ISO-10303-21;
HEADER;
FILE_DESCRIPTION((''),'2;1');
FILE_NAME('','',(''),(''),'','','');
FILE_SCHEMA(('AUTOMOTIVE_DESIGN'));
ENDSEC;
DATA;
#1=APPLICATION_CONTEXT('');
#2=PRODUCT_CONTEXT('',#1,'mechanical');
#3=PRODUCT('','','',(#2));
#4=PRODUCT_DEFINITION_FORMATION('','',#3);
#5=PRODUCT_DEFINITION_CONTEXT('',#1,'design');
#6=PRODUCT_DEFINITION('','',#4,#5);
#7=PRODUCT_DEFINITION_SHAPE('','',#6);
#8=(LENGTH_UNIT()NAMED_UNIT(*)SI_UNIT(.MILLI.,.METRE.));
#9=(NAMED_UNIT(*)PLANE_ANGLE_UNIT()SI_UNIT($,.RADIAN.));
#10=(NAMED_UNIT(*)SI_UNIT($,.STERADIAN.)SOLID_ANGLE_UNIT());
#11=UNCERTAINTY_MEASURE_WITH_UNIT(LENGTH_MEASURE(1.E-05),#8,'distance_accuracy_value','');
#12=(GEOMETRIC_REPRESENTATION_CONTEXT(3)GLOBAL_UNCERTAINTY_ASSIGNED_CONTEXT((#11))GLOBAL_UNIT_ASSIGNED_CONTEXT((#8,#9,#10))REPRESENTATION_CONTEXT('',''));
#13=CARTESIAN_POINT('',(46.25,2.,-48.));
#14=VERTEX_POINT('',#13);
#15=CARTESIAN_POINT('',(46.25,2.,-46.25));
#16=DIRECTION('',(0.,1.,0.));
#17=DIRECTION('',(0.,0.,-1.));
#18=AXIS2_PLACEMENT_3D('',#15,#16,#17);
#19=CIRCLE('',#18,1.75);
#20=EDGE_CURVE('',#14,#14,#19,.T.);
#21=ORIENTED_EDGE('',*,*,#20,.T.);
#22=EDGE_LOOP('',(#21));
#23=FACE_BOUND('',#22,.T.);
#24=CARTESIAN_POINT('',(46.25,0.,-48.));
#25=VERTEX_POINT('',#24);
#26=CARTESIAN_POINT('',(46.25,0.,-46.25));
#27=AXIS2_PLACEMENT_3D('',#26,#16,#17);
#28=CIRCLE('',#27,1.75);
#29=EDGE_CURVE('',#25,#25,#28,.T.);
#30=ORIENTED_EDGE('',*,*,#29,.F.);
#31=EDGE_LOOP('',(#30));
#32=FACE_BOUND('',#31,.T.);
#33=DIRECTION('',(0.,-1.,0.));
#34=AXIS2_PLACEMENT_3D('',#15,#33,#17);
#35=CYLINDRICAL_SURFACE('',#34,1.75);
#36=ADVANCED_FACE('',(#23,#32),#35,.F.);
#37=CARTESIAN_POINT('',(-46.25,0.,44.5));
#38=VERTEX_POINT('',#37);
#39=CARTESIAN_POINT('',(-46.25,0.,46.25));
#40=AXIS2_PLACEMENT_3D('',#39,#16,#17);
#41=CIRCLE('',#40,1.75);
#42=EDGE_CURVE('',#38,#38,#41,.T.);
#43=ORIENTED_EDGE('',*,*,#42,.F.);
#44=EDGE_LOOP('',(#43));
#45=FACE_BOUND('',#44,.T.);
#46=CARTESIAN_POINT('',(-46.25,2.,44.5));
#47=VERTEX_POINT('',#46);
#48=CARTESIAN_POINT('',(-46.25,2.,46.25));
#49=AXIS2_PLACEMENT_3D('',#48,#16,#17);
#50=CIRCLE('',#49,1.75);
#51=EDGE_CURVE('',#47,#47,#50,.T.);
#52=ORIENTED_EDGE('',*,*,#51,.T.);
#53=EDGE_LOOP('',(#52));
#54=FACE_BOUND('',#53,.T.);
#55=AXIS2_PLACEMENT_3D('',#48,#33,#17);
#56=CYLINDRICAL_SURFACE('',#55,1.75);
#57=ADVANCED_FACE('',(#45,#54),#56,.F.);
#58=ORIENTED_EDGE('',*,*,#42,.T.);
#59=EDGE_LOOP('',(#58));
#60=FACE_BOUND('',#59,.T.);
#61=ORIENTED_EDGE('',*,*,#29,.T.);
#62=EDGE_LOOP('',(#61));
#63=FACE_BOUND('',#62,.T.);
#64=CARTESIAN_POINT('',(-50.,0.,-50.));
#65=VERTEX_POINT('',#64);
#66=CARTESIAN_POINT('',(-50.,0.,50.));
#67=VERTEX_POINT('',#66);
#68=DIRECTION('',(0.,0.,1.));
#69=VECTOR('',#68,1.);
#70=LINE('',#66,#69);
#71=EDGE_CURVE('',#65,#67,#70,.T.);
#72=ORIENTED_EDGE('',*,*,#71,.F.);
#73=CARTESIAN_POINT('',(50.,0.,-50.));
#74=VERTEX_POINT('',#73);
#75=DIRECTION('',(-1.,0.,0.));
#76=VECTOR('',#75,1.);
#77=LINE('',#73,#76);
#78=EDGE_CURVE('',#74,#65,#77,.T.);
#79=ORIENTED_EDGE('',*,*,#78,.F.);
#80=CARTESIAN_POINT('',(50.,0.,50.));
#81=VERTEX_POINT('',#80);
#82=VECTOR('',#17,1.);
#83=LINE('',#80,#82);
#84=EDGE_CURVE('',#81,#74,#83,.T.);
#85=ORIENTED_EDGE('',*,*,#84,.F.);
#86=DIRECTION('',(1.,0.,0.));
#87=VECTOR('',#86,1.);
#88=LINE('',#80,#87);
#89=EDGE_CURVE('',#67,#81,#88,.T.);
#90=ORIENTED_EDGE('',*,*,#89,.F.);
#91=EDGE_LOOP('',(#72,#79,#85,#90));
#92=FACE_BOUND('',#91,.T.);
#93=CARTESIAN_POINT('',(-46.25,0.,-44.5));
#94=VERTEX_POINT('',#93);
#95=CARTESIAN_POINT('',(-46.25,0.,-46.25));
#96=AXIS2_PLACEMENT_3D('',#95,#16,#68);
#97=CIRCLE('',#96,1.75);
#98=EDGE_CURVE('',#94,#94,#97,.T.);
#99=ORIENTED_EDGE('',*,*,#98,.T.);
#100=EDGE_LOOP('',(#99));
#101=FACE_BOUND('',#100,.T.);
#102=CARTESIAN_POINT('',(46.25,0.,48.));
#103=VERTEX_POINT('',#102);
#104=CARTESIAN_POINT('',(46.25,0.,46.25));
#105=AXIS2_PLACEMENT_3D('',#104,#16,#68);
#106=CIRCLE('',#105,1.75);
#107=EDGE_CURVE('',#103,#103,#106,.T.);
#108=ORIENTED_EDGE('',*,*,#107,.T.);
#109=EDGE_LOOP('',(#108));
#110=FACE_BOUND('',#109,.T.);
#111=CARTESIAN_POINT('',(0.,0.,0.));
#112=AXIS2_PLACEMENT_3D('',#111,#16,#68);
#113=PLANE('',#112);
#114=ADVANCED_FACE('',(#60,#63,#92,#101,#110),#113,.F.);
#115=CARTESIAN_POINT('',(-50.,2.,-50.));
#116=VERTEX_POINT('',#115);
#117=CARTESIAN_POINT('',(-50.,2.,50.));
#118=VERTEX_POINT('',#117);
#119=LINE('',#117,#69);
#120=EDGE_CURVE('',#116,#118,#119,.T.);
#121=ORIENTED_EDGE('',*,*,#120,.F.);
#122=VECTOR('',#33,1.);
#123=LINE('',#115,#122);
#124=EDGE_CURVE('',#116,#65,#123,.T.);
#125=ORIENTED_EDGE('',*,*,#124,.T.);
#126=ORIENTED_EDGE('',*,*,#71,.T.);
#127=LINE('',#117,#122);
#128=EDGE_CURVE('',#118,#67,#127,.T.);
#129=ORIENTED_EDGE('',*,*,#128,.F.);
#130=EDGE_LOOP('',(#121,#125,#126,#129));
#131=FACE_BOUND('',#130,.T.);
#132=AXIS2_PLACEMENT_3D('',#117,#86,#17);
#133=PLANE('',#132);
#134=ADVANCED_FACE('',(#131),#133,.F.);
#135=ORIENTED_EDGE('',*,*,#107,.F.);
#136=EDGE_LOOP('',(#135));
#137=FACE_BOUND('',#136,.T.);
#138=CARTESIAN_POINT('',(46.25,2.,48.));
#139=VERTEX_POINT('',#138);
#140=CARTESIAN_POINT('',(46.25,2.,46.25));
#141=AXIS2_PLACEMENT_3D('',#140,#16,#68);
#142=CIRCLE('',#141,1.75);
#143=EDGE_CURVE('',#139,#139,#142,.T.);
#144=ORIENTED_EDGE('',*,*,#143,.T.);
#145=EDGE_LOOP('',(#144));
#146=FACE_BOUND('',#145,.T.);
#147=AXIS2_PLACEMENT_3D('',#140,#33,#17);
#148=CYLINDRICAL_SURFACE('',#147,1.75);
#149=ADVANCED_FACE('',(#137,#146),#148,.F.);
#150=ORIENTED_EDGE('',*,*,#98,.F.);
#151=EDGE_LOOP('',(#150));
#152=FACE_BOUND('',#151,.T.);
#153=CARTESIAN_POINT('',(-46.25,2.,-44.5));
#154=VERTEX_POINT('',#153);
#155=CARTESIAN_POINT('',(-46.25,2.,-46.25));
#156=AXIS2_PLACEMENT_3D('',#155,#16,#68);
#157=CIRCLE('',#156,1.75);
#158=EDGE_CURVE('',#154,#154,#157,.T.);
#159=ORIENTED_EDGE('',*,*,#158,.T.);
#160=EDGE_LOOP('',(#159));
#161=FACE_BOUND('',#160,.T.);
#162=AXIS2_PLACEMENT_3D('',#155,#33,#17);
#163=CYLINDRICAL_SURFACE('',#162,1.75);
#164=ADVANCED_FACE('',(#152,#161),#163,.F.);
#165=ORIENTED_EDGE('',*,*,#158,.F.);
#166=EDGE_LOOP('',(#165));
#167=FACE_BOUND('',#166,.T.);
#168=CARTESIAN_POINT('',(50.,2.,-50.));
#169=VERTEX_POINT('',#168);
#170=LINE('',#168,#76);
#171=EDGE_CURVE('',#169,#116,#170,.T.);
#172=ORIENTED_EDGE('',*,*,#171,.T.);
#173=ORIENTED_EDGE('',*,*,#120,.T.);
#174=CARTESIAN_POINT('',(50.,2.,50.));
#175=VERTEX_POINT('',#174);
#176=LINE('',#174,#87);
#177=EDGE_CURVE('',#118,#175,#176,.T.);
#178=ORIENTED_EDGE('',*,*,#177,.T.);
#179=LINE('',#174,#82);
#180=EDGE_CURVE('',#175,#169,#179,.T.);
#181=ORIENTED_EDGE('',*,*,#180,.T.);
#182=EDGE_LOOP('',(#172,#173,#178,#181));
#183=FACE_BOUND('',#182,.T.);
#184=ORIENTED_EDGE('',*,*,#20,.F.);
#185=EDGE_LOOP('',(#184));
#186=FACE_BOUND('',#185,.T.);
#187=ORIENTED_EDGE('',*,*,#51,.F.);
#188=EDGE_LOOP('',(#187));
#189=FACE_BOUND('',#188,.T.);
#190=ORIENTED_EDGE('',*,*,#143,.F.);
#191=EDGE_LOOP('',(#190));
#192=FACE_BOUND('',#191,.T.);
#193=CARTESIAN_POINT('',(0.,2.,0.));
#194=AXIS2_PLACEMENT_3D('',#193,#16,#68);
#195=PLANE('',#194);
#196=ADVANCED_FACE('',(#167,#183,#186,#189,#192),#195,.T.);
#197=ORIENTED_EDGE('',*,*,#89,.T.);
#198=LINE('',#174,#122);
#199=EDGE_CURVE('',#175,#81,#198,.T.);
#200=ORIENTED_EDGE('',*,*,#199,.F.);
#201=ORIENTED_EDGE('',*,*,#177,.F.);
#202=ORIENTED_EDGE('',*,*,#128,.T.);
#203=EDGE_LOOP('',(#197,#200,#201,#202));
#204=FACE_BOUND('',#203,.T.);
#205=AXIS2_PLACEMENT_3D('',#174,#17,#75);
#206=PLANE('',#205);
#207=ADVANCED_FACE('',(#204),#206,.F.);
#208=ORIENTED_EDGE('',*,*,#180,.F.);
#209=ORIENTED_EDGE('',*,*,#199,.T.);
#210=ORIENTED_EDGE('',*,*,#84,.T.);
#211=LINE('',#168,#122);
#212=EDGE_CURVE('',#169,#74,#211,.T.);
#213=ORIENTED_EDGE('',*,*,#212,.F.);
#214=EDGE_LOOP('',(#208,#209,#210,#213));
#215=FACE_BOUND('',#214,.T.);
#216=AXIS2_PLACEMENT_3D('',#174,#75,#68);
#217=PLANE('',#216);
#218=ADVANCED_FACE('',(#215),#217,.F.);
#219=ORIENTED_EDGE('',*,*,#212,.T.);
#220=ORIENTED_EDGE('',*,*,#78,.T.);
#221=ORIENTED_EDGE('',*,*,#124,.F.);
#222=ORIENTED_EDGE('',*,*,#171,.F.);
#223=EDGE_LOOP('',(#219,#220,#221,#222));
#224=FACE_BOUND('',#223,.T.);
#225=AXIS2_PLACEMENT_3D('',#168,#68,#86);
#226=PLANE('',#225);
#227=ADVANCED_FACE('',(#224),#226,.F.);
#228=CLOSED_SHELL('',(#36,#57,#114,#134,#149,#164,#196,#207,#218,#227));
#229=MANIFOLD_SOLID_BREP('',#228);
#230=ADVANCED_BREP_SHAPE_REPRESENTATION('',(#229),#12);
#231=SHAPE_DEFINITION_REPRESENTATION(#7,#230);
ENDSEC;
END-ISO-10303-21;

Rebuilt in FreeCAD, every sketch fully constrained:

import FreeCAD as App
import Part
import Sketcher

V = App.Vector
Q = App.Units.Quantity


def add_polygon(sketch, points):
    """Adds a closed chain of lines whose ends are joined by coincident constraints."""
    first, n = sketch.GeometryCount, len(points)
    for a, b in zip(points, points[1:] + points[:1]):
        sketch.addGeometry(Part.LineSegment(App.Vector(*a, 0), App.Vector(*b, 0)), False)
    for i in range(n):
        sketch.addConstraint(Sketcher.Constraint("Coincident", first + i, 2, first + (i + 1) % n, 1))

doc = App.newDocument("Part")
body = doc.addObject("PartDesign::Body", "Body")

# Sketch on XZ plane
sketch1 = body.newObject("Sketcher::SketchObject", "Sketch")
sketch1.AttachmentSupport = (doc.getObject("XZ_Plane"), [""])
sketch1.MapMode = "FlatFace"
add_polygon(sketch1, [(-50, -50), (-50, 50), (50, 50), (50, -50)])  # lines 0-3
sketch1.addGeometry(Part.Circle(V(-46.25, 46.25, 0), V(0, 0, 1), 1.75), False)  # 4
sketch1.addGeometry(Part.Circle(V(46.25, 46.25, 0), V(0, 0, 1), 1.75), False)  # 5
sketch1.addGeometry(Part.Circle(V(-46.25, -46.25, 0), V(0, 0, 1), 1.75), False)  # 6
sketch1.addGeometry(Part.Circle(V(46.25, -46.25, 0), V(0, 0, 1), 1.75), False)  # 7
sketch1.addConstraint([
    Sketcher.Constraint("Vertical", 0),
    Sketcher.Constraint("Horizontal", 1),
    Sketcher.Constraint("Vertical", 2),
    Sketcher.Constraint("Horizontal", 3),
    Sketcher.Constraint("Equal", 4, 5),
    Sketcher.Constraint("Equal", 5, 6),
    Sketcher.Constraint("Equal", 6, 7),
    Sketcher.Constraint("Symmetric", 5, 3, 6, 3, -1, 1),
    Sketcher.Constraint("Symmetric", 4, 3, 7, 3, -1, 1),
    Sketcher.Constraint("Symmetric", 0, 2, 2, 2, -1, 1),
    Sketcher.Constraint("Symmetric", 4, 3, 5, 3, -2),
    Sketcher.Constraint("Equal", 3, 0),
    Sketcher.Constraint("Diameter", 4, Q("3.5 mm")),
    Sketcher.Constraint("DistanceX", 1, 1, 1, 2, Q("100 mm")),
    Sketcher.Constraint("DistanceX", 4, 3, 5, 3, Q("92.5 mm")),
    Sketcher.Constraint("DistanceY", 6, 3, 4, 3, Q("92.5 mm")),
])
pad1 = body.newObject("PartDesign::Pad", "Pad")
pad1.Profile = sketch1
pad1.Length = 2
pad1.Reversed = True

doc.recompute()
